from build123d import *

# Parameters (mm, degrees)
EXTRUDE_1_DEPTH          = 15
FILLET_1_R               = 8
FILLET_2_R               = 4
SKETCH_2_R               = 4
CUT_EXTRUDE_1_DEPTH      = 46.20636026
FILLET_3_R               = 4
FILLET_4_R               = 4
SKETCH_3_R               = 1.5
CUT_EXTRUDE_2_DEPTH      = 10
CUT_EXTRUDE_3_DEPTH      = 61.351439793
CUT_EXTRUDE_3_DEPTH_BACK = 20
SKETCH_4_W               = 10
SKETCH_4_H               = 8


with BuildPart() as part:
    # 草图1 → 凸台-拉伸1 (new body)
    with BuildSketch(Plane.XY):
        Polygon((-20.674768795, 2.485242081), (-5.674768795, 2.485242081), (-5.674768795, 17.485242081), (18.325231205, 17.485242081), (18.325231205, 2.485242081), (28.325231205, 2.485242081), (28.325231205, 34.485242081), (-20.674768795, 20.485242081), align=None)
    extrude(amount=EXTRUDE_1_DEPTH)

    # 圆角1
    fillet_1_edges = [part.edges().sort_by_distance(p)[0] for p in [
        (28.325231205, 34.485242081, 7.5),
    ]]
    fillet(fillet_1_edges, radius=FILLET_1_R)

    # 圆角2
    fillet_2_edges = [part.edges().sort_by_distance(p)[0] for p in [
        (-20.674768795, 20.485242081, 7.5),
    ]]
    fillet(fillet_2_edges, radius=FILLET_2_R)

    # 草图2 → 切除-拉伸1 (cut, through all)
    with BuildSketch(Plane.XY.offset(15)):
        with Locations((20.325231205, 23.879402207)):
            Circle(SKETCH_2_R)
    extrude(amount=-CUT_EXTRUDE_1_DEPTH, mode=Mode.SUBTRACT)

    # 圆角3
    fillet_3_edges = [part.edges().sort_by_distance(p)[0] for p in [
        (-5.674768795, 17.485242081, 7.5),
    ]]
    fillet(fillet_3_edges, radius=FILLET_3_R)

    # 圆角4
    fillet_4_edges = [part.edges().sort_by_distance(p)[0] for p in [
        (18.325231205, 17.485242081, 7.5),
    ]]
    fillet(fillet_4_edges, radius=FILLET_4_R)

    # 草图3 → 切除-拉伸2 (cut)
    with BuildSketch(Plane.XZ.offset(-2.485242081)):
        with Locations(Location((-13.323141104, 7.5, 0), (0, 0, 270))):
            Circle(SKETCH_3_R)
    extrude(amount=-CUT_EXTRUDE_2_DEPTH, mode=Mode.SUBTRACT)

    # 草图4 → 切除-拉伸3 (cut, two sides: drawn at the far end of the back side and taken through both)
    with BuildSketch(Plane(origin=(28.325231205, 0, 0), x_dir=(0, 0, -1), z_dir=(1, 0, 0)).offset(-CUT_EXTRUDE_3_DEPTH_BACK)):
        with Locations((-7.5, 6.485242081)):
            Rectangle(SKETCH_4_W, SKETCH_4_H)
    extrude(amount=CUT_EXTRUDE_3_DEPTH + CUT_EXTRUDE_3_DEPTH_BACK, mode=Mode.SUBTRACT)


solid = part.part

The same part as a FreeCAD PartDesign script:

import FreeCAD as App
import Part
import Sketcher
from FreeCAD import Vector


def edges_at(feature, points):
    """Names of the edges that pass closest to the given points."""
    edges = feature.Shape.Edges
    near = lambda p: min(range(len(edges)), key=lambda i: edges[i].distToShape(Part.Vertex(*p))[0])
    return sorted({f"Edge{near(p) + 1}" for p in points})

doc = App.newDocument("Part")
body = doc.addObject("PartDesign::Body", "Body")

# Sketch on XY plane
sketch1 = body.newObject("Sketcher::SketchObject", "Sketch")
sketch1.AttachmentSupport = (doc.getObject("XY_Plane"), [""])
sketch1.MapMode = "FlatFace"
sketch1.addGeometry(Part.LineSegment(Vector(-21, 2, 0), Vector(-6, 2, 0)), False)
sketch1.addGeometry(Part.LineSegment(Vector(-6, 2, 0), Vector(-6, 17, 0)), False)
sketch1.addGeometry(Part.LineSegment(Vector(-6, 17, 0), Vector(18, 17, 0)), False)
sketch1.addGeometry(Part.LineSegment(Vector(18, 17, 0), Vector(18, 2, 0)), False)
sketch1.addGeometry(Part.LineSegment(Vector(18, 2, 0), Vector(28, 2, 0)), False)
sketch1.addGeometry(Part.LineSegment(Vector(28, 2, 0), Vector(28, 34, 0)), False)
sketch1.addGeometry(Part.LineSegment(Vector(28, 34, 0), Vector(-21, 20, 0)), False)
sketch1.addGeometry(Part.LineSegment(Vector(-21, 20, 0), Vector(-21, 2, 0)), False)
sketch1.addConstraint(Sketcher.Constraint("Coincident", 0, 2, 1, 1))
sketch1.addConstraint(Sketcher.Constraint("Coincident", 1, 2, 2, 1))
sketch1.addConstraint(Sketcher.Constraint("Coincident", 2, 2, 3, 1))
sketch1.addConstraint(Sketcher.Constraint("Coincident", 3, 2, 4, 1))
sketch1.addConstraint(Sketcher.Constraint("Coincident", 4, 2, 5, 1))
sketch1.addConstraint(Sketcher.Constraint("Coincident", 5, 2, 6, 1))
sketch1.addConstraint(Sketcher.Constraint("Coincident", 6, 2, 7, 1))
sketch1.addConstraint(Sketcher.Constraint("Coincident", 7, 2, 0, 1))
sketch1.addConstraint(Sketcher.Constraint("Horizontal", 0))
sketch1.addConstraint(Sketcher.Constraint("Vertical", 1))
sketch1.addConstraint(Sketcher.Constraint("Horizontal", 2))
sketch1.addConstraint(Sketcher.Constraint("Vertical", 3))
sketch1.addConstraint(Sketcher.Constraint("Horizontal", 4))
sketch1.addConstraint(Sketcher.Constraint("Vertical", 5))
sketch1.addConstraint(Sketcher.Constraint("Vertical", 7))
sketch1.addConstraint(Sketcher.Constraint("Horizontal", 0, 2, 3, 2))
sketch1.addConstraint(Sketcher.Constraint("Equal", 0, 1))
sketch1.addConstraint(Sketcher.Constraint("DistanceX", 0, 1, 0, 2, 15.0))
sketch1.addConstraint(Sketcher.Constraint("DistanceX", 2, 1, 2, 2, 24.0))
sketch1.addConstraint(Sketcher.Constraint("DistanceX", 4, 1, 4, 2, 10.0))
sketch1.addConstraint(Sketcher.Constraint("DistanceY", 5, 1, 5, 2, 32.0))
sketch1.addConstraint(Sketcher.Constraint("DistanceY", 7, 2, 7, 1, 18.0))
sketch1.addConstraint(Sketcher.Constraint("DistanceX", 0, 2, -1, 1, 5.674769))
sketch1.addConstraint(Sketcher.Constraint("DistanceY", -1, 1, 0, 2, 2.485242))
pad1 = body.newObject("PartDesign::Pad", "Pad")
pad1.Profile = sketch1
pad1.Length = 15
doc.recompute()

fillet = body.newObject("PartDesign::Fillet", "Fillet")
fillet.Base = (pad1, edges_at(pad1, [(28.325, 34.485, 7.5)]))
fillet.Radius = 8
doc.recompute()

fillet2 = body.newObject("PartDesign::Fillet", "Fillet001")
fillet2.Base = (fillet, edges_at(fillet, [(-20.675, 20.485, 7.5)]))
fillet2.Radius = 4

# Sketch on XY plane
sketch2 = body.newObject("Sketcher::SketchObject", "Sketch001")
sketch2.AttachmentSupport = (doc.getObject("XY_Plane"), [""])
sketch2.MapMode = "FlatFace"
sketch2.AttachmentOffset = App.Placement(Vector(0, 0, 15), App.Rotation())
sketch2.addGeometry(Part.Circle(Vector(20.3, 23.9, 0), Vector(0, 0, 1), 4), False)
sketch2.addConstraint(Sketcher.Constraint("Diameter", 0, 8.0))
sketch2.addConstraint(Sketcher.Constraint("DistanceX", -1, 1, 0, 3, 20.325231))
sketch2.addConstraint(Sketcher.Constraint("DistanceY", -1, 1, 0, 3, 23.879402))
pocket1 = body.newObject("PartDesign::Pocket", "Pocket")
pocket1.Profile = sketch2
pocket1.Type = "ThroughAll"
doc.recompute()

fillet3 = body.newObject("PartDesign::Fillet", "Fillet002")
fillet3.Base = (pocket1, edges_at(pocket1, [(-5.675, 17.485, 7.5)]))
fillet3.Radius = 4
doc.recompute()

fillet4 = body.newObject("PartDesign::Fillet", "Fillet003")
fillet4.Base = (fillet3, edges_at(fillet3, [(18.325, 17.485, 7.5)]))
fillet4.Radius = 4

# Sketch on XZ plane
sketch3 = body.newObject("Sketcher::SketchObject", "Sketch002")
sketch3.AttachmentSupport = (doc.getObject("XZ_Plane"), [""])
sketch3.MapMode = "FlatFace"
sketch3.AttachmentOffset = App.Placement(Vector(0, 0, -2.485242), App.Rotation())
sketch3.addGeometry(Part.Circle(Vector(-13.3, 7.5, 0), Vector(0, 0, 1), 1.5), False)
sketch3.addConstraint(Sketcher.Constraint("Diameter", 0, 3.0))
sketch3.addConstraint(Sketcher.Constraint("DistanceY", -1, 1, 0, 3, 7.5))
sketch3.addConstraint(Sketcher.Constraint("DistanceX", 0, 3, -1, 1, 13.323141))
pocket2 = body.newObject("PartDesign::Pocket", "Pocket001")
pocket2.Profile = sketch3
pocket2.Length = 10

# Sketch on YZ plane
sketch4 = body.newObject("Sketcher::SketchObject", "Sketch003")
sketch4.AttachmentSupport = (doc.getObject("YZ_Plane"), [""])
sketch4.MapMode = "FlatFace"
sketch4.AttachmentOffset = App.Placement(Vector(0, 0, 28.325231), App.Rotation())
sketch4.addGeometry(Part.LineSegment(Vector(10, 12, 0), Vector(2, 12, 0)), False)
sketch4.addGeometry(Part.LineSegment(Vector(2, 12, 0), Vector(2, 2, 0)), False)
sketch4.addGeometry(Part.LineSegment(Vector(2, 2, 0), Vector(10, 2, 0)), False)
sketch4.addGeometry(Part.LineSegment(Vector(10, 2, 0), Vector(10, 12, 0)), False)
sketch4.addConstraint(Sketcher.Constraint("Coincident", 0, 2, 1, 1))
sketch4.addConstraint(Sketcher.Constraint("Coincident", 1, 2, 2, 1))
sketch4.addConstraint(Sketcher.Constraint("Coincident", 2, 2, 3, 1))
sketch4.addConstraint(Sketcher.Constraint("Coincident", 3, 2, 0, 1))
sketch4.addConstraint(Sketcher.Constraint("Horizontal", 0))
sketch4.addConstraint(Sketcher.Constraint("Vertical", 1))
sketch4.addConstraint(Sketcher.Constraint("Horizontal", 2))
sketch4.addConstraint(Sketcher.Constraint("Vertical", 3))
sketch4.addConstraint(Sketcher.Constraint("DistanceX", 0, 2, 0, 1, 8.0))
sketch4.addConstraint(Sketcher.Constraint("DistanceY", 1, 2, 1, 1, 10.0))
sketch4.addConstraint(Sketcher.Constraint("DistanceY", -1, 1, 0, 2, 12.5))
sketch4.addConstraint(Sketcher.Constraint("DistanceX", -1, 1, 0, 2, 2.485242))
pocket3 = body.newObject("PartDesign::Pocket", "Pocket002")
pocket3.Profile = sketch4
pocket3.Type = "TwoLengths"
pocket3.Length = 61.35144
pocket3.Length2 = 20
pocket3.Reversed = True

doc.recompute()
